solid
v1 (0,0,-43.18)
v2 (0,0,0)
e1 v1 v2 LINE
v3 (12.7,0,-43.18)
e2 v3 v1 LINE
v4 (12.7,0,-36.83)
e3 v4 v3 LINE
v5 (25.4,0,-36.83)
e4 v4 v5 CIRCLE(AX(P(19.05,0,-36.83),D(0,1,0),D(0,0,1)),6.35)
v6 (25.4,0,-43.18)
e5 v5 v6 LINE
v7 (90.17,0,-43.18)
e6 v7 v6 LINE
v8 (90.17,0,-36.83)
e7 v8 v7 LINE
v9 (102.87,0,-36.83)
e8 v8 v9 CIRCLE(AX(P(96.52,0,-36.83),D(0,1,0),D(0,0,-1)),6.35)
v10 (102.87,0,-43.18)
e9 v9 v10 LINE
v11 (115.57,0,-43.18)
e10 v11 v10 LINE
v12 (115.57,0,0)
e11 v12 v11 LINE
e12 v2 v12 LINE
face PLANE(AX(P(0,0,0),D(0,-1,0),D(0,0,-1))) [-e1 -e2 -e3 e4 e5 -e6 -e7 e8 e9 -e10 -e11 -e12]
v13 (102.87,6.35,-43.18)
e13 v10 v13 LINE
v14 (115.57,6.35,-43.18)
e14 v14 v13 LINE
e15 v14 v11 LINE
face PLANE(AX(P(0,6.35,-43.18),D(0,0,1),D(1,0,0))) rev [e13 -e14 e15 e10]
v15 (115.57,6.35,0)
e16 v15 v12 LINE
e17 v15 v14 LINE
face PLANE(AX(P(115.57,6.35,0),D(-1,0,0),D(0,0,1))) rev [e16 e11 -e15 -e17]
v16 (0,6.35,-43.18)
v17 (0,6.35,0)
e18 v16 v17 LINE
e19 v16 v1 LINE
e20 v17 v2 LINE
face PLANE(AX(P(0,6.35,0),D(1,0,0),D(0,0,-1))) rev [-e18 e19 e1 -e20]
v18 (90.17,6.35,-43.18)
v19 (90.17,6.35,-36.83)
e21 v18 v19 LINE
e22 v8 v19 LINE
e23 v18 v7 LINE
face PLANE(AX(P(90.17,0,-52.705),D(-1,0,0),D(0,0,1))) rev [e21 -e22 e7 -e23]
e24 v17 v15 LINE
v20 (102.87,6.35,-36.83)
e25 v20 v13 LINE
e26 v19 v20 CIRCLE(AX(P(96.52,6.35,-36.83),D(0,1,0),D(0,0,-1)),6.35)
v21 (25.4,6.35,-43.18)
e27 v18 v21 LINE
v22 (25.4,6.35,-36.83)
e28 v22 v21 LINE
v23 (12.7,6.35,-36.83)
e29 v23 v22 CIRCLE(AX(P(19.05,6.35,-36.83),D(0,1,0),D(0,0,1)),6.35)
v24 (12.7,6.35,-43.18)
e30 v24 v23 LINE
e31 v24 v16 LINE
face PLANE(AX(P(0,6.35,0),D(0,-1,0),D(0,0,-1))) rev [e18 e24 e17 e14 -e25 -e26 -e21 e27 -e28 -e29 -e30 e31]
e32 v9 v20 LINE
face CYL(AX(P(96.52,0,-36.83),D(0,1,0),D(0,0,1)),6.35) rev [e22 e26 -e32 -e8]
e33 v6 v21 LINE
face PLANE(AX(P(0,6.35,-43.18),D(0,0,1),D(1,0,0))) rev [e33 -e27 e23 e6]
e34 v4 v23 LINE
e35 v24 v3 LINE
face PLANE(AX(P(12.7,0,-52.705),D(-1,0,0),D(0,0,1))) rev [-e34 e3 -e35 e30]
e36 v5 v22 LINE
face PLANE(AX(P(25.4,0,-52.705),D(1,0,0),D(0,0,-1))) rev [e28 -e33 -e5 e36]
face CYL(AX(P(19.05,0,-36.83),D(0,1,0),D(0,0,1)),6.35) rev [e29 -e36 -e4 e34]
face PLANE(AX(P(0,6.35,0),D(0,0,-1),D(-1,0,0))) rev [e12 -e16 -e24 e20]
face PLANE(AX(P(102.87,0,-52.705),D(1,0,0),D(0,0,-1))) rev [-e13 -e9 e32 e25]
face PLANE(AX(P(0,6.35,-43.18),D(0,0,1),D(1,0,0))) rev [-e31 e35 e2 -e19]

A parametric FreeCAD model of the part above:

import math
import FreeCAD as App
import Part
import Sketcher
from FreeCAD import Vector
Q = App.Units.Quantity

doc = App.newDocument("Part")
body = doc.addObject("PartDesign::Body", "Body")

sketch1 = body.newObject("Sketcher::SketchObject", "Sketch")
sketch1.AttachmentSupport = (doc.getObject("XZ_Plane"), [""])
sketch1.MapMode = "FlatFace"
sketch1.addGeometry([
    Part.LineSegment(Vector(0, -43.18, 0), Vector(0, 0, 0)),
    Part.LineSegment(Vector(0, 0, 0), Vector(115.57, 0, 0)),
    Part.LineSegment(Vector(115.57, 0, 0), Vector(115.57, -43.18, 0)),
    Part.LineSegment(Vector(115.57, -43.18, 0), Vector(0, -43.18, 0)),
], False)
sketch1.addConstraint([
    Sketcher.Constraint("Coincident", 0, 2, 1, 1),
    Sketcher.Constraint("Coincident", 1, 2, 2, 1),
    Sketcher.Constraint("Coincident", 2, 2, 3, 1),
    Sketcher.Constraint("Coincident", 3, 2, 0, 1),
    Sketcher.Constraint("Vertical", 0),
    Sketcher.Constraint("Horizontal", 1),
    Sketcher.Constraint("Vertical", 2),
    Sketcher.Constraint("Horizontal", 3),
    Sketcher.Constraint("Coincident", 0, 2, -1, 1),
    Sketcher.Constraint("DistanceY", 0, 1, 0, 2, Q("1.7 in")),
    Sketcher.Constraint("DistanceX", 1, 1, 1, 2, Q("4.55 in")),
])
pad1 = body.newObject("PartDesign::Pad", "Pad")
pad1.Profile = sketch1
pad1.Length = Q("0.25 in")
pad1.Reversed = True

sketch2 = body.newObject("Sketcher::SketchObject", "Sketch001")
sketch2.AttachmentSupport = (doc.getObject("XZ_Plane"), [""])
sketch2.MapMode = "FlatFace"
sketch2.AttachmentOffset = App.Placement(Vector(0, 0, -0.25 * 25.4), App.Rotation())
sketch2.addGeometry([
    Part.LineSegment(Vector(25.4, -36.83, 0), Vector(25.4, -52.705, 0)),
    Part.LineSegment(Vector(25.4, -52.705, 0), Vector(12.7, -52.705, 0)),
    Part.LineSegment(Vector(12.7, -52.705, 0), Vector(12.7, -36.83, 0)),
    Part.ArcOfCircle(Part.Circle(Vector(19.05, -36.83, 0), Vector(0, 0, 1), 6.35), math.radians(0), math.radians(180)),
    Part.LineSegment(Vector(102.87, -52.705, 0), Vector(90.17, -52.705, 0)),
    Part.LineSegment(Vector(90.17, -52.705, 0), Vector(90.17, -36.83, 0)),
    Part.ArcOfCircle(Part.Circle(Vector(96.52, -36.83, 0), Vector(0, 0, 1), 6.35), math.radians(0), math.radians(180)),
    Part.LineSegment(Vector(102.87, -36.83, 0), Vector(102.87, -52.705, 0)),
], False)
sketch2.addConstraint([
    Sketcher.Constraint("Coincident", 0, 2, 1, 1),
    Sketcher.Constraint("Coincident", 1, 2, 2, 1),
    Sketcher.Constraint("Tangent", 2, 2, 3, 2),
    Sketcher.Constraint("Tangent", 3, 1, 0, 1),
    Sketcher.Constraint("Coincident", 4, 2, 5, 1),
    Sketcher.Constraint("Tangent", 5, 2, 6, 2),
    Sketcher.Constraint("Tangent", 6, 1, 7, 1),
    Sketcher.Constraint("Coincident", 7, 2, 4, 1),
    Sketcher.Constraint("Vertical", 0),
    Sketcher.Constraint("Horizontal", 1),
    Sketcher.Constraint("Vertical", 2),
    Sketcher.Constraint("Horizontal", 4),
    Sketcher.Constraint("Vertical", 5),
    Sketcher.Constraint("Vertical", 7),
    Sketcher.Constraint("Equal", 3, 6),
    Sketcher.Constraint("Horizontal", 3, 3, 6, 3),
    Sketcher.Constraint("Horizontal", 1, 2, 4, 2),
    Sketcher.Constraint("Radius", 3, Q("0.25 in")),
    Sketcher.Constraint("DistanceX", -1, 1, 0, 2, Q("1 in")),
    Sketcher.Constraint("DistanceX", -1, 1, 6, 3, Q("3.8 in")),
    Sketcher.Constraint("DistanceY", 0, 2, 0, 1, Q("0.625 in")),
    Sketcher.Constraint("DistanceY", 3, 3, -1, 1, Q("1.45 in")),
])
pocket1 = body.newObject("PartDesign::Pocket", "Pocket")
pocket1.Profile = sketch2
pocket1.Type = "ThroughAll"
pocket1.Reversed = True

doc.recompute()
